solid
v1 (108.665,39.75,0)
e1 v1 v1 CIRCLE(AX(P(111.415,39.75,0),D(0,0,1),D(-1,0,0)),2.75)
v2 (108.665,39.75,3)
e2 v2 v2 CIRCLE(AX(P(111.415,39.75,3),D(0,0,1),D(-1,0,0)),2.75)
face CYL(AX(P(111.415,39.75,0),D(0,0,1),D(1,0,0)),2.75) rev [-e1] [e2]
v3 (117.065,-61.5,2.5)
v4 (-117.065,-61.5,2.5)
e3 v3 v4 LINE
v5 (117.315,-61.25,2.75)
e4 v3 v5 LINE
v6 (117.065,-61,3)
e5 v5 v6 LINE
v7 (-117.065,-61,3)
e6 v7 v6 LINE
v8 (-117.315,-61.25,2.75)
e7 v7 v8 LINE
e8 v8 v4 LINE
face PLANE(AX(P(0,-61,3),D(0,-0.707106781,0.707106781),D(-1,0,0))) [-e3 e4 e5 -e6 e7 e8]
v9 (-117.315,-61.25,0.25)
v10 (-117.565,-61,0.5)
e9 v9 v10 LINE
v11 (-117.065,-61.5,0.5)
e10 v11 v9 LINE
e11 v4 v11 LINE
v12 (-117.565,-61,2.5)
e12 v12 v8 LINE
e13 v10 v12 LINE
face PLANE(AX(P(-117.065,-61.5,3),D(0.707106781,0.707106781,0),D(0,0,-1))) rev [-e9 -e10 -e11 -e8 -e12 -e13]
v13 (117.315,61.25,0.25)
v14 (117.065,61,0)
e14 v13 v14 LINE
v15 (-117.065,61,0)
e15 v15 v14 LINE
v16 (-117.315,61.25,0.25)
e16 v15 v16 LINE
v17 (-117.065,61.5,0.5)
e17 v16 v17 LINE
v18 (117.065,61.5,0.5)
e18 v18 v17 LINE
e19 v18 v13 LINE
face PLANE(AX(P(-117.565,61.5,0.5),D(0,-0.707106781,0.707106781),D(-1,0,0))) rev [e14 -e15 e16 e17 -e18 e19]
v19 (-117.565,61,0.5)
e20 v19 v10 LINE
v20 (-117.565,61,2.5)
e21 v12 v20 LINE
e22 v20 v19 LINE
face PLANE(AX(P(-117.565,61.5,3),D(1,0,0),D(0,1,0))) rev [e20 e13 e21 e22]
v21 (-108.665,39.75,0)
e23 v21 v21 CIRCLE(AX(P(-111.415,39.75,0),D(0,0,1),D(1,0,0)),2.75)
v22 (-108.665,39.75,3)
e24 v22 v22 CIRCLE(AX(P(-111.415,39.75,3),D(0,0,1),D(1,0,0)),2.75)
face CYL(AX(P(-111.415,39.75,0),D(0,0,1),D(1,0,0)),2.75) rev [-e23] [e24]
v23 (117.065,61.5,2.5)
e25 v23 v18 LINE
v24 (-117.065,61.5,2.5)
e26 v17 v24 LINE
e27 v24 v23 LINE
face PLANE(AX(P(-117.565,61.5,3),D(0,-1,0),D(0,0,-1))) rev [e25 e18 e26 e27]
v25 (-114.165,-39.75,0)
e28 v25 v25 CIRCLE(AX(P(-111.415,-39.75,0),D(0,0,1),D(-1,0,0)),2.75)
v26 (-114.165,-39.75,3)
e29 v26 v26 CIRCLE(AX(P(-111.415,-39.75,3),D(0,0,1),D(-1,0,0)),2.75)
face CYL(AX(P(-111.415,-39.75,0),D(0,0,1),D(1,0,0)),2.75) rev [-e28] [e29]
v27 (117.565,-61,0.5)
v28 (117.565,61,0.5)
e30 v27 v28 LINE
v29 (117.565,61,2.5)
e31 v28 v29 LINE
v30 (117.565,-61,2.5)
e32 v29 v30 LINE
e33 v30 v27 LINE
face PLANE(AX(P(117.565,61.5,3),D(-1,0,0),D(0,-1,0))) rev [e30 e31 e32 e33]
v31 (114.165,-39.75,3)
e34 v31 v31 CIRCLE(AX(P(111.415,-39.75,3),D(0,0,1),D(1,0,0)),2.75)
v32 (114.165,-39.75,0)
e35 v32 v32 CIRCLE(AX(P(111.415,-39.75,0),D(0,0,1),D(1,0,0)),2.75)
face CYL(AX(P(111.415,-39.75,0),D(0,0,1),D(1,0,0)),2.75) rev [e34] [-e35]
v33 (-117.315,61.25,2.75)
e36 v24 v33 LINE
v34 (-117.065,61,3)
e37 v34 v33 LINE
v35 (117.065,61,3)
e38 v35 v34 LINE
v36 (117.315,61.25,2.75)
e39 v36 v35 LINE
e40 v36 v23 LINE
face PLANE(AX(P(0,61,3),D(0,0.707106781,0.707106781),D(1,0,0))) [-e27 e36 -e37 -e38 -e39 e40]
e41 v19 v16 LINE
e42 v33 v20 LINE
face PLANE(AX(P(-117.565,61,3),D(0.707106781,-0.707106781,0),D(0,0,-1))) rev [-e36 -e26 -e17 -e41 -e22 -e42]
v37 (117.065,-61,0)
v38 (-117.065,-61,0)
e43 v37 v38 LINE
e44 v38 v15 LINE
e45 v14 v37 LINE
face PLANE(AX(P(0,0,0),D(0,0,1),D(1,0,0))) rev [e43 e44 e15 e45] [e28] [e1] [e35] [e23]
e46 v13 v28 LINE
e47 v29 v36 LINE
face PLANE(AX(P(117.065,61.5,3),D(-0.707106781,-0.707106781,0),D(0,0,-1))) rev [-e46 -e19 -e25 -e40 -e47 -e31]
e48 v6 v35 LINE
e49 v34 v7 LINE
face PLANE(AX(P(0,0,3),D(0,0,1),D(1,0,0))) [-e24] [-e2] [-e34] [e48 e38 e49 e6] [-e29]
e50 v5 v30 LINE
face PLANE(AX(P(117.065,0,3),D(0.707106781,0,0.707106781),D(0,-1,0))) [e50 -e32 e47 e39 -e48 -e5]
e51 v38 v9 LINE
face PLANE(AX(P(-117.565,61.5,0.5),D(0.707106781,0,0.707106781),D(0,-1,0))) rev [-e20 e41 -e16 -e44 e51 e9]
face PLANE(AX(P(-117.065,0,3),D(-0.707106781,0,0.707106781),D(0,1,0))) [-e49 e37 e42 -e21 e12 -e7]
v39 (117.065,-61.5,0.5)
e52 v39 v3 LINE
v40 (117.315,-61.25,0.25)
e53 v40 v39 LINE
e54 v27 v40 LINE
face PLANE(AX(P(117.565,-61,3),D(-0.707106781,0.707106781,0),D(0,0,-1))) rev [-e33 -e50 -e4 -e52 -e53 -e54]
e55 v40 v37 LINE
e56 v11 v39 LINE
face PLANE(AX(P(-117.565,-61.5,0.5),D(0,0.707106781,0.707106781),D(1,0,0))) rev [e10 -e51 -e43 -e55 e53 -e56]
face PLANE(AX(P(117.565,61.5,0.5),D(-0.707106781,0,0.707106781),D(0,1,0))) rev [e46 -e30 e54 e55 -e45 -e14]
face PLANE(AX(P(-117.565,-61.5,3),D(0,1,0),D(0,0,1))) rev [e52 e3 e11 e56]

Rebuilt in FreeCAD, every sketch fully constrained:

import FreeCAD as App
import Part
import Sketcher


def edges_at(feature, points):
    """Names of the edges that pass closest to the given points."""
    edges = feature.Shape.Edges
    near = lambda p: min(range(len(edges)), key=lambda i: edges[i].distToShape(Part.Vertex(*p))[0])
    return sorted({f"Edge{near(p) + 1}" for p in points})


def add_polygon(sketch, points):
    """Adds a closed chain of lines whose ends are joined by coincident constraints."""
    first, n = sketch.GeometryCount, len(points)
    for a, b in zip(points, points[1:] + points[:1]):
        sketch.addGeometry(Part.LineSegment(App.Vector(*a, 0), App.Vector(*b, 0)), False)
    for i in range(n):
        sketch.addConstraint(Sketcher.Constraint("Coincident", first + i, 2, first + (i + 1) % n, 1))

doc = App.newDocument("Part")
body = doc.addObject("PartDesign::Body", "Body")

# Sketch on XY plane
sketch1 = body.newObject("Sketcher::SketchObject", "Sketch")
sketch1.AttachmentSupport = (doc.getObject("XY_Plane"), [""])
sketch1.MapMode = "FlatFace"
add_polygon(sketch1, [(-118, 62), (-118, -62), (118, -62), (118, 62)])  # lines 0-3
sketch1.addConstraint(Sketcher.Constraint("Vertical", 0))
sketch1.addConstraint(Sketcher.Constraint("Horizontal", 1))
sketch1.addConstraint(Sketcher.Constraint("Vertical", 2))
sketch1.addConstraint(Sketcher.Constraint("Horizontal", 3))
sketch1.addConstraint(Sketcher.Constraint("Symmetric", 0, 2, 2, 2, -1, 1))
sketch1.addConstraint(Sketcher.Constraint("DistanceY", 0, 2, 0, 1, 123.0))
sketch1.addConstraint(Sketcher.Constraint("DistanceX", 1, 1, 1, 2, 235.13))
pad1 = body.newObject("PartDesign::Pad", "Pad")
pad1.Profile = sketch1
pad1.Length = 3

# Sketch on XY plane
sketch2 = body.newObject("Sketcher::SketchObject", "Sketch001")
sketch2.AttachmentSupport = (doc.getObject("XY_Plane"), [""])
sketch2.MapMode = "FlatFace"
sketch2.AttachmentOffset = App.Placement(App.Vector(0, 0, 3), App.Rotation())
sketch2.addGeometry(Part.Circle(App.Vector(-111.4, 39.8, 0), App.Vector(0, 0, 1), 2.8), False)
sketch2.addGeometry(Part.Circle(App.Vector(-111.4, -39.8, 0), App.Vector(0, 0, 1), 2.8), False)
sketch2.addGeometry(Part.Circle(App.Vector(111.4, -39.8, 0), App.Vector(0, 0, 1), 2.8), False)
sketch2.addGeometry(Part.Circle(App.Vector(111.4, 39.8, 0), App.Vector(0, 0, 1), 2.8), False)
sketch2.addConstraint(Sketcher.Constraint("Equal", 0, 1))
sketch2.addConstraint(Sketcher.Constraint("Equal", 1, 2))
sketch2.addConstraint(Sketcher.Constraint("Equal", 2, 3))
sketch2.addConstraint(Sketcher.Constraint("Symmetric", 0, 3, 2, 3, -1, 1))
sketch2.addConstraint(Sketcher.Constraint("Symmetric", 1, 3, 3, 3, -1, 1))
sketch2.addConstraint(Sketcher.Constraint("Symmetric", 1, 3, 2, 3, -2))
sketch2.addConstraint(Sketcher.Constraint("Diameter", 0, 5.5))
sketch2.addConstraint(Sketcher.Constraint("DistanceY", 1, 3, 0, 3, 79.5))
sketch2.addConstraint(Sketcher.Constraint("DistanceX", 1, 3, 2, 3, 222.83))
pocket1 = body.newObject("PartDesign::Pocket", "Pocket")
pocket1.Profile = sketch2
pocket1.Type = "ThroughAll"
doc.recompute()

chamfer = body.newObject("PartDesign::Chamfer", "Chamfer")
chamfer.Base = (pocket1, edges_at(pocket1, [
    (-117.565, 0, 3),
    (0, -61.5, 3),
    (117.565, 0, 3),
    (0, -61.5, 0),
    (-117.565, 0, 0),
    (0, 61.5, 0),
    (117.565, 0, 0),
    (0, 61.5, 3),
]))
chamfer.Size = 0.5
doc.recompute()

chamfer2 = body.newObject("PartDesign::Chamfer", "Chamfer001")
chamfer2.Base = (chamfer, edges_at(chamfer, [
    (117.565, -61.5, 1.5),
    (-117.565, -61.5, 1.5),
    (-117.565, 61.5, 1.5),
    (117.565, 61.5, 1.5),
]))
chamfer2.Size = 0.5

doc.recompute()
